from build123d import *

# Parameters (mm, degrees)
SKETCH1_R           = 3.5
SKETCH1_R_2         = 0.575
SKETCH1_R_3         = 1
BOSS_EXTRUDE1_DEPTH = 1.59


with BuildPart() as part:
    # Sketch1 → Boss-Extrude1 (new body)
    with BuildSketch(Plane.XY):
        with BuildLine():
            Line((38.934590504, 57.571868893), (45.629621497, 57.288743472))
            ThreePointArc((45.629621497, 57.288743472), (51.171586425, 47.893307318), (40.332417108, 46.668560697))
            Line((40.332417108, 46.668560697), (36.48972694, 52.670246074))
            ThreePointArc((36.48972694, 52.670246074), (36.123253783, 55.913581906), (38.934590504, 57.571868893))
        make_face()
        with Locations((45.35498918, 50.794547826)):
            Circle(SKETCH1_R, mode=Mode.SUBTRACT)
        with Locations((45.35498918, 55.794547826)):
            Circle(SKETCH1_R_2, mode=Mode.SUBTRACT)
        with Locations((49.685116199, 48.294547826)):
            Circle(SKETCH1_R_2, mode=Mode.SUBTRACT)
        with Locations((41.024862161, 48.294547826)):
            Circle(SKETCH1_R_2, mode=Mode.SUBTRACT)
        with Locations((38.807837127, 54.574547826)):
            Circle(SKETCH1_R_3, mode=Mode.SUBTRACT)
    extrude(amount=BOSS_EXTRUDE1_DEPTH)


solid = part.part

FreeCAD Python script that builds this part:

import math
import FreeCAD as App
import Part
import Sketcher

V = App.Vector

doc = App.newDocument("Part")
body = doc.addObject("PartDesign::Body", "Body")

# Sketch on XY plane
sketch1 = doc.addObject("Sketcher::SketchObject", "Sketch")
body.addObject(sketch1)
sketch1.AttachmentSupport = (doc.XY_Plane, [""])
sketch1.MapMode = "FlatFace"
sketch1.addGeometry(Part.LineSegment(V(45.629621, 57.288743, 0), V(38.934591, 57.571869, 0)), False)
sketch1.addGeometry(Part.ArcOfCircle(Part.Circle(V(38.807837, 54.574548, 0), V(0, 0, 1), 3), math.radians(87.578468), math.radians(219.402724)), False)
sketch1.addGeometry(Part.LineSegment(V(36.489727, 52.670246, 0), V(40.332417, 46.668561, 0)), False)
sketch1.addGeometry(Part.ArcOfCircle(Part.Circle(V(45.354989, 50.794548, 0), V(0, 0, 1), 6.5), math.radians(-140.597276), math.radians(87.578468)), False)
sketch1.addGeometry(Part.Circle(V(49.685116, 48.294548, 0), V(0, 0, 1), 0.575), False)
sketch1.addGeometry(Part.Circle(V(45.354989, 50.794548, 0), V(0, 0, 1), 3.5), False)
sketch1.addGeometry(Part.Circle(V(41.024862, 48.294548, 0), V(0, 0, 1), 0.575), False)
sketch1.addGeometry(Part.Circle(V(45.354989, 55.794548, 0), V(0, 0, 1), 0.575), False)
sketch1.addGeometry(Part.Circle(V(38.807837, 54.574548, 0), V(0, 0, 1), 1), False)
sketch1.addConstraint(Sketcher.Constraint("Tangent", 0, 2, 1, 1))
sketch1.addConstraint(Sketcher.Constraint("Coincident", 1, 2, 2, 1))
sketch1.addConstraint(Sketcher.Constraint("Coincident", 2, 2, 3, 1))
sketch1.addConstraint(Sketcher.Constraint("Tangent", 3, 2, 0, 1))
sketch1.addConstraint(Sketcher.Constraint("Coincident", 5, 3, 3, 3))
sketch1.addConstraint(Sketcher.Constraint("Coincident", 8, 3, 1, 3))
sketch1.addConstraint(Sketcher.Constraint("Equal", 4, 6))
sketch1.addConstraint(Sketcher.Constraint("Equal", 6, 7))
sketch1.addConstraint(Sketcher.Constraint("Horizontal", 4, 3, 6, 3))
sketch1.addConstraint(Sketcher.Constraint("Vertical", 5, 3, 7, 3))
sketch1.addConstraint(Sketcher.Constraint("Diameter", 5, 7.0))
sketch1.addConstraint(Sketcher.Constraint("Diameter", 8, 2.0))
sketch1.addConstraint(Sketcher.Constraint("Radius", 1, 3.0))
sketch1.addConstraint(Sketcher.Constraint("Radius", 3, 6.5))
sketch1.addConstraint(Sketcher.Constraint("Diameter", 4, 1.15))
sketch1.addConstraint(Sketcher.Constraint("DistanceY", 3, 3, 7, 3, 5.0))
sketch1.addConstraint(Sketcher.Constraint("DistanceY", 4, 3, 3, 3, 2.5))
sketch1.addConstraint(Sketcher.Constraint("DistanceY", 3, 3, 1, 3, 3.78))
sketch1.addConstraint(Sketcher.Constraint("DistanceX", 0, 2, 7, 3, 6.420399))
sketch1.addConstraint(Sketcher.Constraint("DistanceY", 1, 2, 1, 3, 1.904302))
sketch1.addConstraint(Sketcher.Constraint("DistanceX", -1, 1, 3, 3, 45.354989))
sketch1.addConstraint(Sketcher.Constraint("DistanceY", -1, 1, 0, 2, 57.571869))
sketch1.addConstraint(Sketcher.Constraint("DistanceY", -1, 1, 2, 2, 46.668561))
sketch1.addConstraint(Sketcher.Constraint("DistanceX", 1, 3, 4, 3, 10.877279))
sketch1.addConstraint(Sketcher.Constraint("DistanceX", -1, 1, 6, 3, 41.024862))
pad1 = doc.addObject("PartDesign::Pad", "Pad")
body.addObject(pad1)
pad1.Profile = sketch1
pad1.Length = 1.59

doc.recompute()
